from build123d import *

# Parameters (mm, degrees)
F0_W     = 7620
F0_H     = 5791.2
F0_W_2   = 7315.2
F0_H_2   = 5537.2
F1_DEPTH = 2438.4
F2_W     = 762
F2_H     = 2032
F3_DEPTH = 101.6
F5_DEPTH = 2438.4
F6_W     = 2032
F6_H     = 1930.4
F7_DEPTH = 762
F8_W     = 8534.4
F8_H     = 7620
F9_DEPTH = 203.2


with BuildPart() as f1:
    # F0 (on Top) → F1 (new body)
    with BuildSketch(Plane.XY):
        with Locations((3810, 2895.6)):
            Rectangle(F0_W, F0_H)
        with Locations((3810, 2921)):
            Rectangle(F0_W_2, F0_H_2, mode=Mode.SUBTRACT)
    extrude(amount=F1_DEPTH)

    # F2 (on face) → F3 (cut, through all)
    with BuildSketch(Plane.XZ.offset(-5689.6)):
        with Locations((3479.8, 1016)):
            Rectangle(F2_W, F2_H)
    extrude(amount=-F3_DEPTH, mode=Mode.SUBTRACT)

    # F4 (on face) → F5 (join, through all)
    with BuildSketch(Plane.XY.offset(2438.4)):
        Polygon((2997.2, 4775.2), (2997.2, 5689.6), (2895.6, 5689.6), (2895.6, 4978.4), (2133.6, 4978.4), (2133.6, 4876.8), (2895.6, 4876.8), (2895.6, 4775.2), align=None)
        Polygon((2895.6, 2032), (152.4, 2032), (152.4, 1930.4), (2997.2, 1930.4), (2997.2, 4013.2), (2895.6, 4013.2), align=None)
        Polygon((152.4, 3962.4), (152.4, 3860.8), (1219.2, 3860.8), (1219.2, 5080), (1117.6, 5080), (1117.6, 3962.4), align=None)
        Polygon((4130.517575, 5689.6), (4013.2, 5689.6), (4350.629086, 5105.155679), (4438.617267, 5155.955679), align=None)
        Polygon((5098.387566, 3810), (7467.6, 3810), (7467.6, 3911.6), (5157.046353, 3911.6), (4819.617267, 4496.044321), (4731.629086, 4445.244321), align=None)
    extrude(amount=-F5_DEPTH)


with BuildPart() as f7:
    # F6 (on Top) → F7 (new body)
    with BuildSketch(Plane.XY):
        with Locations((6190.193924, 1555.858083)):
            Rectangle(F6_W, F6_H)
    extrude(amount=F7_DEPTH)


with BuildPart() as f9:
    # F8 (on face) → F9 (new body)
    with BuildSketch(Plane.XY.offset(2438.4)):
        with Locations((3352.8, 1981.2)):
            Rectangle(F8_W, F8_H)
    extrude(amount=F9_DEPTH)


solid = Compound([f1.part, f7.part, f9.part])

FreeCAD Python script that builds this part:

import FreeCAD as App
import Part
import Sketcher
Q = App.Units.Quantity

doc = App.newDocument("Part")
body = doc.addObject("PartDesign::Body", "Body")

# Sketch on XY plane
sketch1 = body.newObject("Sketcher::SketchObject", "Sketch")
sketch1.AttachmentSupport = (doc.getObject("XY_Plane"), [""])
sketch1.MapMode = "FlatFace"
sketch1.addGeometry([
    Part.LineSegment(App.Vector(0, 5791, 0), App.Vector(0, 0, 0)),  # 0
    Part.LineSegment(App.Vector(0, 0, 0), App.Vector(7620, 0, 0)),  # 1
    Part.LineSegment(App.Vector(7620, 0, 0), App.Vector(7620, 5791, 0)),  # 2
    Part.LineSegment(App.Vector(7620, 5791, 0), App.Vector(0, 5791, 0)),  # 3
    Part.LineSegment(App.Vector(7468, 152, 0), App.Vector(152, 152, 0)),  # 4
    Part.LineSegment(App.Vector(152, 152, 0), App.Vector(152, 5690, 0)),  # 5
    Part.LineSegment(App.Vector(152, 5690, 0), App.Vector(7468, 5690, 0)),  # 6
    Part.LineSegment(App.Vector(7468, 5690, 0), App.Vector(7468, 152, 0)),  # 7
], False)
sketch1.addConstraint([
    Sketcher.Constraint("Coincident", 0, 2, 1, 1),
    Sketcher.Constraint("Coincident", 1, 2, 2, 1),
    Sketcher.Constraint("Coincident", 2, 2, 3, 1),
    Sketcher.Constraint("Coincident", 3, 2, 0, 1),
    Sketcher.Constraint("Coincident", 4, 2, 5, 1),
    Sketcher.Constraint("Coincident", 5, 2, 6, 1),
    Sketcher.Constraint("Coincident", 6, 2, 7, 1),
    Sketcher.Constraint("Coincident", 7, 2, 4, 1),
    Sketcher.Constraint("Vertical", 0),
    Sketcher.Constraint("Horizontal", 1),
    Sketcher.Constraint("Vertical", 2),
    Sketcher.Constraint("Horizontal", 3),
    Sketcher.Constraint("Horizontal", 4),
    Sketcher.Constraint("Vertical", 5),
    Sketcher.Constraint("Horizontal", 6),
    Sketcher.Constraint("Vertical", 7),
    Sketcher.Constraint("Coincident", 0, 2, -1, 1),
    Sketcher.Constraint("DistanceX", 1, 1, 1, 2, Q("300 in")),
    Sketcher.Constraint("DistanceX", 4, 2, 4, 1, Q("288 in")),
    Sketcher.Constraint("DistanceY", 0, 2, 0, 1, Q("228 in")),
    Sketcher.Constraint("DistanceY", 5, 1, 5, 2, Q("218 in")),
    Sketcher.Constraint("DistanceX", -1, 1, 4, 2, Q("6 in")),
    Sketcher.Constraint("DistanceY", -1, 1, 4, 2, Q("6 in")),
])
pad1 = body.newObject("PartDesign::Pad", "Pad")
pad1.Profile = sketch1
pad1.Length = Q("96 in")

# Sketch on XZ plane
sketch2 = body.newObject("Sketcher::SketchObject", "Sketch001")
sketch2.AttachmentSupport = (doc.getObject("XZ_Plane"), [""])
sketch2.MapMode = "FlatFace"
sketch2.AttachmentOffset = App.Placement(App.Vector(0, 0, -224 * 25.4), App.Rotation())
sketch2.addGeometry([
    Part.LineSegment(App.Vector(3099, 2032, 0), App.Vector(3099, 0, 0)),
    Part.LineSegment(App.Vector(3099, 0, 0), App.Vector(3861, 0, 0)),
    Part.LineSegment(App.Vector(3861, 0, 0), App.Vector(3861, 2032, 0)),
    Part.LineSegment(App.Vector(3861, 2032, 0), App.Vector(3099, 2032, 0)),
], False)
sketch2.addConstraint([
    Sketcher.Constraint("Coincident", 0, 2, 1, 1),
    Sketcher.Constraint("Coincident", 1, 2, 2, 1),
    Sketcher.Constraint("Coincident", 2, 2, 3, 1),
    Sketcher.Constraint("Coincident", 3, 2, 0, 1),
    Sketcher.Constraint("Vertical", 0),
    Sketcher.Constraint("Horizontal", 1),
    Sketcher.Constraint("Vertical", 2),
    Sketcher.Constraint("Horizontal", 3),
    Sketcher.Constraint("PointOnObject", 0, 2, -1),
    Sketcher.Constraint("DistanceX", 1, 1, 1, 2, Q("30 in")),
    Sketcher.Constraint("DistanceY", 0, 2, 0, 1, Q("80 in")),
    Sketcher.Constraint("DistanceX", -1, 1, 0, 2, Q("122 in")),
])
pocket1 = body.newObject("PartDesign::Pocket", "Pocket")
pocket1.Profile = sketch2
pocket1.Type = "ThroughAll"

# Sketch on XY plane
sketch3 = body.newObject("Sketcher::SketchObject", "Sketch002")
sketch3.AttachmentSupport = (doc.getObject("XY_Plane"), [""])
sketch3.MapMode = "FlatFace"
sketch3.AttachmentOffset = App.Placement(App.Vector(0, 0, 96 * 25.4), App.Rotation())
sketch3.addGeometry([
    Part.LineSegment(App.Vector(2997, 4775, 0), App.Vector(2997, 5690, 0)),  # 0
    Part.LineSegment(App.Vector(2997, 5690, 0), App.Vector(2896, 5690, 0)),  # 1
    Part.LineSegment(App.Vector(2896, 5690, 0), App.Vector(2896, 4978, 0)),  # 2
    Part.LineSegment(App.Vector(2896, 4978, 0), App.Vector(2134, 4978, 0)),  # 3
    Part.LineSegment(App.Vector(2134, 4978, 0), App.Vector(2134, 4877, 0)),  # 4
    Part.LineSegment(App.Vector(2134, 4877, 0), App.Vector(2896, 4877, 0)),  # 5
    Part.LineSegment(App.Vector(2896, 4877, 0), App.Vector(2896, 4775, 0)),  # 6
    Part.LineSegment(App.Vector(2896, 4775, 0), App.Vector(2997, 4775, 0)),  # 7
    Part.LineSegment(App.Vector(2896, 2032, 0), App.Vector(152, 2032, 0)),  # 8
    Part.LineSegment(App.Vector(152, 2032, 0), App.Vector(152, 1930, 0)),  # 9
    Part.LineSegment(App.Vector(152, 1930, 0), App.Vector(2997, 1930, 0)),  # 10
    Part.LineSegment(App.Vector(2997, 1930, 0), App.Vector(2997, 4013, 0)),  # 11
    Part.LineSegment(App.Vector(2997, 4013, 0), App.Vector(2896, 4013, 0)),  # 12
    Part.LineSegment(App.Vector(2896, 4013, 0), App.Vector(2896, 2032, 0)),  # 13
    Part.LineSegment(App.Vector(152, 3962, 0), App.Vector(152, 3861, 0)),  # 14
    Part.LineSegment(App.Vector(152, 3861, 0), App.Vector(1219, 3861, 0)),  # 15
    Part.LineSegment(App.Vector(1219, 3861, 0), App.Vector(1219, 5080, 0)),  # 16
    Part.LineSegment(App.Vector(1219, 5080, 0), App.Vector(1118, 5080, 0)),  # 17
    Part.LineSegment(App.Vector(1118, 5080, 0), App.Vector(1118, 3962, 0)),  # 18
    Part.LineSegment(App.Vector(1118, 3962, 0), App.Vector(152, 3962, 0)),  # 19
    Part.LineSegment(App.Vector(4131, 5690, 0), App.Vector(4013, 5690, 0)),  # 20
    Part.LineSegment(App.Vector(4013, 5690, 0), App.Vector(4351, 5105, 0)),  # 21
    Part.LineSegment(App.Vector(4351, 5105, 0), App.Vector(4439, 5156, 0)),  # 22
    Part.LineSegment(App.Vector(4439, 5156, 0), App.Vector(4131, 5690, 0)),  # 23
    Part.LineSegment(App.Vector(5098, 3810, 0), App.Vector(7468, 3810, 0)),  # 24
    Part.LineSegment(App.Vector(7468, 3810, 0), App.Vector(7468, 3912, 0)),  # 25
    Part.LineSegment(App.Vector(7468, 3912, 0), App.Vector(5157, 3912, 0)),  # 26
    Part.LineSegment(App.Vector(5157, 3912, 0), App.Vector(4820, 4496, 0)),  # 27
    Part.LineSegment(App.Vector(4820, 4496, 0), App.Vector(4732, 4445, 0)),  # 28
    Part.LineSegment(App.Vector(4732, 4445, 0), App.Vector(5098, 3810, 0)),  # 29
], False)
sketch3.addConstraint([
    Sketcher.Constraint("Coincident", 0, 2, 1, 1),
    Sketcher.Constraint("Coincident", 1, 2, 2, 1),
    Sketcher.Constraint("Coincident", 2, 2, 3, 1),
    Sketcher.Constraint("Coincident", 3, 2, 4, 1),
    Sketcher.Constraint("Coincident", 4, 2, 5, 1),
    Sketcher.Constraint("Coincident", 5, 2, 6, 1),
    Sketcher.Constraint("Coincident", 6, 2, 7, 1),
    Sketcher.Constraint("Coincident", 7, 2, 0, 1),
    Sketcher.Constraint("Coincident", 8, 2, 9, 1),
    Sketcher.Constraint("Coincident", 9, 2, 10, 1),
    Sketcher.Constraint("Coincident", 10, 2, 11, 1),
    Sketcher.Constraint("Coincident", 11, 2, 12, 1),
    Sketcher.Constraint("Coincident", 12, 2, 13, 1),
    Sketcher.Constraint("Coincident", 13, 2, 8, 1),
    Sketcher.Constraint("Coincident", 14, 2, 15, 1),
    Sketcher.Constraint("Coincident", 15, 2, 16, 1),
    Sketcher.Constraint("Coincident", 16, 2, 17, 1),
    Sketcher.Constraint("Coincident", 17, 2, 18, 1),
    Sketcher.Constraint("Coincident", 18, 2, 19, 1),
    Sketcher.Constraint("Coincident", 19, 2, 14, 1),
    Sketcher.Constraint("Coincident", 20, 2, 21, 1),
    Sketcher.Constraint("Coincident", 21, 2, 22, 1),
    Sketcher.Constraint("Coincident", 22, 2, 23, 1),
    Sketcher.Constraint("Coincident", 23, 2, 20, 1),
    Sketcher.Constraint("Coincident", 24, 2, 25, 1),
    Sketcher.Constraint("Coincident", 25, 2, 26, 1),
    Sketcher.Constraint("Coincident", 26, 2, 27, 1),
    Sketcher.Constraint("Coincident", 27, 2, 28, 1),
    Sketcher.Constraint("Coincident", 28, 2, 29, 1),
    Sketcher.Constraint("Coincident", 29, 2, 24, 1),
    Sketcher.Constraint("Vertical", 0),
    Sketcher.Constraint("Horizontal", 1),
    Sketcher.Constraint("Vertical", 2),
    Sketcher.Constraint("Horizontal", 3),
    Sketcher.Constraint("Vertical", 4),
    Sketcher.Constraint("Horizontal", 5),
    Sketcher.Constraint("Vertical", 6),
    Sketcher.Constraint("Horizontal", 7),
    Sketcher.Constraint("Horizontal", 8),
    Sketcher.Constraint("Vertical", 9),
    Sketcher.Constraint("Horizontal", 10),
    Sketcher.Constraint("Vertical", 11),
    Sketcher.Constraint("Horizontal", 12),
    Sketcher.Constraint("Vertical", 13),
    Sketcher.Constraint("Vertical", 14),
    Sketcher.Constraint("Horizontal", 15),
    Sketcher.Constraint("Vertical", 16),
    Sketcher.Constraint("Horizontal", 17),
    Sketcher.Constraint("Vertical", 18),
    Sketcher.Constraint("Horizontal", 19),
    Sketcher.Constraint("Horizontal", 20),
    Sketcher.Constraint("Horizontal", 24),
    Sketcher.Constraint("Vertical", 25),
    Sketcher.Constraint("Horizontal", 26),
    Sketcher.Constraint("Perpendicular", 21, 22),
    Sketcher.Constraint("Perpendicular", 22, 23),
    Sketcher.Constraint("Parallel", 23, 27),
    Sketcher.Constraint("Perpendicular", 27, 28),
    Sketcher.Constraint("Perpendicular", 28, 29),
    Sketcher.Constraint("Horizontal", 1, 2, 20, 2),
    Sketcher.Constraint("Vertical", 2, 2, 5, 2),
    Sketcher.Constraint("Vertical", 7, 2, 10, 2),
    Sketcher.Constraint("Vertical", 6, 2, 12, 2),
    Sketcher.Constraint("Vertical", 9, 2, 14, 2),
    Sketcher.Constraint("Equal", 12, 17),
    Sketcher.Constraint("Equal", 17, 4),
    Sketcher.Constraint("Equal", 4, 6),
    Sketcher.Constraint("Equal", 6, 9),
    Sketcher.Constraint("Equal", 9, 14),
    Sketcher.Constraint("Equal", 14, 25),
    Sketcher.Constraint("Equal", 21, 27),
    Sketcher.Constraint("Equal", 22, 28),
    Sketcher.Constraint("DistanceX", 1, 2, 1, 1, Q("4 in")),
    Sketcher.Constraint("DistanceX", 3, 2, 3, 1, Q("30 in")),
    Sketcher.Constraint("DistanceX", 8, 2, 8, 1, Q("108 in")),
    Sketcher.Constraint("DistanceX", 15, 1, 15, 2, Q("42 in")),
    Sketcher.Constraint("DistanceY", 0, 1, 0, 2, Q("36 in")),
    Sketcher.Constraint("DistanceY", 11, 1, 11, 2, Q("82 in")),
    Sketcher.Constraint("DistanceY", 16, 1, 16, 2, Q("48 in")),
    Sketcher.Constraint("Distance", 22, Q("4 in")),
    Sketcher.Constraint("DistanceX", -1, 1, 0, 2, Q("118 in")),
    Sketcher.Constraint("DistanceY", -1, 1, 0, 2, Q("224 in")),
    Sketcher.Constraint("DistanceY", -1, 1, 8, 2, Q("80 in")),
    Sketcher.Constraint("DistanceY", -1, 1, 14, 2, Q("152 in")),
    Sketcher.Constraint("DistanceX", -1, 1, 20, 2, Q("158 in")),
    Sketcher.Constraint("DistanceX", -1, 1, 24, 2, Q("294 in")),
    Sketcher.Constraint("DistanceY", -1, 1, 24, 2, Q("150 in")),
    Sketcher.Constraint("Angle", 21, Q("-60 deg")),
    Sketcher.Constraint("DistanceX", 22, 2, 27, 2, Q("15 in")),
    Sketcher.Constraint("DistanceX", 27, 2, 29, 2, Q("278.770299 mm")),
])
pad2 = body.newObject("PartDesign::Pad", "Pad001")
pad2.Profile = sketch3
pad2.Length = Q("96 in")
pad2.Reversed = True
body2 = doc.addObject("PartDesign::Body", "Body001")

# Sketch on XY plane
sketch4 = body2.newObject("Sketcher::SketchObject", "Sketch003")
sketch4.AttachmentSupport = (doc.getObject("XY_Plane001"), [""])
sketch4.MapMode = "FlatFace"
sketch4.addGeometry([
    Part.LineSegment(App.Vector(5174, 2521, 0), App.Vector(5174, 591, 0)),
    Part.LineSegment(App.Vector(5174, 591, 0), App.Vector(7206, 591, 0)),
    Part.LineSegment(App.Vector(7206, 591, 0), App.Vector(7206, 2521, 0)),
    Part.LineSegment(App.Vector(7206, 2521, 0), App.Vector(5174, 2521, 0)),
], False)
sketch4.addConstraint([
    Sketcher.Constraint("Coincident", 0, 2, 1, 1),
    Sketcher.Constraint("Coincident", 1, 2, 2, 1),
    Sketcher.Constraint("Coincident", 2, 2, 3, 1),
    Sketcher.Constraint("Coincident", 3, 2, 0, 1),
    Sketcher.Constraint("Vertical", 0),
    Sketcher.Constraint("Horizontal", 1),
    Sketcher.Constraint("Vertical", 2),
    Sketcher.Constraint("Horizontal", 3),
    Sketcher.Constraint("DistanceX", 1, 1, 1, 2, Q("80 in")),
    Sketcher.Constraint("DistanceY", 0, 2, 0, 1, Q("76 in")),
    Sketcher.Constraint("DistanceX", -1, 1, 0, 2, Q("5174.193924 mm")),
    Sketcher.Constraint("DistanceY", -1, 1, 0, 2, Q("590.658083 mm")),
])
pad3 = body2.newObject("PartDesign::Pad", "Pad002")
pad3.Profile = sketch4
pad3.Length = Q("30 in")
body3 = doc.addObject("PartDesign::Body", "Body002")

# Sketch on XY plane
sketch5 = body3.newObject("Sketcher::SketchObject", "Sketch004")
sketch5.AttachmentSupport = (doc.getObject("XY_Plane002"), [""])
sketch5.MapMode = "FlatFace"
sketch5.AttachmentOffset = App.Placement(App.Vector(0, 0, 96 * 25.4), App.Rotation())
sketch5.addGeometry([
    Part.LineSegment(App.Vector(-914, 5791, 0), App.Vector(-914, -1829, 0)),
    Part.LineSegment(App.Vector(-914, -1829, 0), App.Vector(7620, -1829, 0)),
    Part.LineSegment(App.Vector(7620, -1829, 0), App.Vector(7620, 5791, 0)),
    Part.LineSegment(App.Vector(7620, 5791, 0), App.Vector(-914, 5791, 0)),
], False)
sketch5.addConstraint([
    Sketcher.Constraint("Coincident", 0, 2, 1, 1),
    Sketcher.Constraint("Coincident", 1, 2, 2, 1),
    Sketcher.Constraint("Coincident", 2, 2, 3, 1),
    Sketcher.Constraint("Coincident", 3, 2, 0, 1),
    Sketcher.Constraint("Vertical", 0),
    Sketcher.Constraint("Horizontal", 1),
    Sketcher.Constraint("Vertical", 2),
    Sketcher.Constraint("Horizontal", 3),
    Sketcher.Constraint("DistanceX", 1, 1, 1, 2, Q("336 in")),
    Sketcher.Constraint("DistanceY", 0, 2, 0, 1, Q("300 in")),
    Sketcher.Constraint("DistanceX", 0, 2, -1, 1, Q("36 in")),
    Sketcher.Constraint("DistanceY", 0, 2, -1, 1, Q("72 in")),
])
pad4 = body3.newObject("PartDesign::Pad", "Pad003")
pad4.Profile = sketch5
pad4.Length = Q("8 in")

doc.recompute()
